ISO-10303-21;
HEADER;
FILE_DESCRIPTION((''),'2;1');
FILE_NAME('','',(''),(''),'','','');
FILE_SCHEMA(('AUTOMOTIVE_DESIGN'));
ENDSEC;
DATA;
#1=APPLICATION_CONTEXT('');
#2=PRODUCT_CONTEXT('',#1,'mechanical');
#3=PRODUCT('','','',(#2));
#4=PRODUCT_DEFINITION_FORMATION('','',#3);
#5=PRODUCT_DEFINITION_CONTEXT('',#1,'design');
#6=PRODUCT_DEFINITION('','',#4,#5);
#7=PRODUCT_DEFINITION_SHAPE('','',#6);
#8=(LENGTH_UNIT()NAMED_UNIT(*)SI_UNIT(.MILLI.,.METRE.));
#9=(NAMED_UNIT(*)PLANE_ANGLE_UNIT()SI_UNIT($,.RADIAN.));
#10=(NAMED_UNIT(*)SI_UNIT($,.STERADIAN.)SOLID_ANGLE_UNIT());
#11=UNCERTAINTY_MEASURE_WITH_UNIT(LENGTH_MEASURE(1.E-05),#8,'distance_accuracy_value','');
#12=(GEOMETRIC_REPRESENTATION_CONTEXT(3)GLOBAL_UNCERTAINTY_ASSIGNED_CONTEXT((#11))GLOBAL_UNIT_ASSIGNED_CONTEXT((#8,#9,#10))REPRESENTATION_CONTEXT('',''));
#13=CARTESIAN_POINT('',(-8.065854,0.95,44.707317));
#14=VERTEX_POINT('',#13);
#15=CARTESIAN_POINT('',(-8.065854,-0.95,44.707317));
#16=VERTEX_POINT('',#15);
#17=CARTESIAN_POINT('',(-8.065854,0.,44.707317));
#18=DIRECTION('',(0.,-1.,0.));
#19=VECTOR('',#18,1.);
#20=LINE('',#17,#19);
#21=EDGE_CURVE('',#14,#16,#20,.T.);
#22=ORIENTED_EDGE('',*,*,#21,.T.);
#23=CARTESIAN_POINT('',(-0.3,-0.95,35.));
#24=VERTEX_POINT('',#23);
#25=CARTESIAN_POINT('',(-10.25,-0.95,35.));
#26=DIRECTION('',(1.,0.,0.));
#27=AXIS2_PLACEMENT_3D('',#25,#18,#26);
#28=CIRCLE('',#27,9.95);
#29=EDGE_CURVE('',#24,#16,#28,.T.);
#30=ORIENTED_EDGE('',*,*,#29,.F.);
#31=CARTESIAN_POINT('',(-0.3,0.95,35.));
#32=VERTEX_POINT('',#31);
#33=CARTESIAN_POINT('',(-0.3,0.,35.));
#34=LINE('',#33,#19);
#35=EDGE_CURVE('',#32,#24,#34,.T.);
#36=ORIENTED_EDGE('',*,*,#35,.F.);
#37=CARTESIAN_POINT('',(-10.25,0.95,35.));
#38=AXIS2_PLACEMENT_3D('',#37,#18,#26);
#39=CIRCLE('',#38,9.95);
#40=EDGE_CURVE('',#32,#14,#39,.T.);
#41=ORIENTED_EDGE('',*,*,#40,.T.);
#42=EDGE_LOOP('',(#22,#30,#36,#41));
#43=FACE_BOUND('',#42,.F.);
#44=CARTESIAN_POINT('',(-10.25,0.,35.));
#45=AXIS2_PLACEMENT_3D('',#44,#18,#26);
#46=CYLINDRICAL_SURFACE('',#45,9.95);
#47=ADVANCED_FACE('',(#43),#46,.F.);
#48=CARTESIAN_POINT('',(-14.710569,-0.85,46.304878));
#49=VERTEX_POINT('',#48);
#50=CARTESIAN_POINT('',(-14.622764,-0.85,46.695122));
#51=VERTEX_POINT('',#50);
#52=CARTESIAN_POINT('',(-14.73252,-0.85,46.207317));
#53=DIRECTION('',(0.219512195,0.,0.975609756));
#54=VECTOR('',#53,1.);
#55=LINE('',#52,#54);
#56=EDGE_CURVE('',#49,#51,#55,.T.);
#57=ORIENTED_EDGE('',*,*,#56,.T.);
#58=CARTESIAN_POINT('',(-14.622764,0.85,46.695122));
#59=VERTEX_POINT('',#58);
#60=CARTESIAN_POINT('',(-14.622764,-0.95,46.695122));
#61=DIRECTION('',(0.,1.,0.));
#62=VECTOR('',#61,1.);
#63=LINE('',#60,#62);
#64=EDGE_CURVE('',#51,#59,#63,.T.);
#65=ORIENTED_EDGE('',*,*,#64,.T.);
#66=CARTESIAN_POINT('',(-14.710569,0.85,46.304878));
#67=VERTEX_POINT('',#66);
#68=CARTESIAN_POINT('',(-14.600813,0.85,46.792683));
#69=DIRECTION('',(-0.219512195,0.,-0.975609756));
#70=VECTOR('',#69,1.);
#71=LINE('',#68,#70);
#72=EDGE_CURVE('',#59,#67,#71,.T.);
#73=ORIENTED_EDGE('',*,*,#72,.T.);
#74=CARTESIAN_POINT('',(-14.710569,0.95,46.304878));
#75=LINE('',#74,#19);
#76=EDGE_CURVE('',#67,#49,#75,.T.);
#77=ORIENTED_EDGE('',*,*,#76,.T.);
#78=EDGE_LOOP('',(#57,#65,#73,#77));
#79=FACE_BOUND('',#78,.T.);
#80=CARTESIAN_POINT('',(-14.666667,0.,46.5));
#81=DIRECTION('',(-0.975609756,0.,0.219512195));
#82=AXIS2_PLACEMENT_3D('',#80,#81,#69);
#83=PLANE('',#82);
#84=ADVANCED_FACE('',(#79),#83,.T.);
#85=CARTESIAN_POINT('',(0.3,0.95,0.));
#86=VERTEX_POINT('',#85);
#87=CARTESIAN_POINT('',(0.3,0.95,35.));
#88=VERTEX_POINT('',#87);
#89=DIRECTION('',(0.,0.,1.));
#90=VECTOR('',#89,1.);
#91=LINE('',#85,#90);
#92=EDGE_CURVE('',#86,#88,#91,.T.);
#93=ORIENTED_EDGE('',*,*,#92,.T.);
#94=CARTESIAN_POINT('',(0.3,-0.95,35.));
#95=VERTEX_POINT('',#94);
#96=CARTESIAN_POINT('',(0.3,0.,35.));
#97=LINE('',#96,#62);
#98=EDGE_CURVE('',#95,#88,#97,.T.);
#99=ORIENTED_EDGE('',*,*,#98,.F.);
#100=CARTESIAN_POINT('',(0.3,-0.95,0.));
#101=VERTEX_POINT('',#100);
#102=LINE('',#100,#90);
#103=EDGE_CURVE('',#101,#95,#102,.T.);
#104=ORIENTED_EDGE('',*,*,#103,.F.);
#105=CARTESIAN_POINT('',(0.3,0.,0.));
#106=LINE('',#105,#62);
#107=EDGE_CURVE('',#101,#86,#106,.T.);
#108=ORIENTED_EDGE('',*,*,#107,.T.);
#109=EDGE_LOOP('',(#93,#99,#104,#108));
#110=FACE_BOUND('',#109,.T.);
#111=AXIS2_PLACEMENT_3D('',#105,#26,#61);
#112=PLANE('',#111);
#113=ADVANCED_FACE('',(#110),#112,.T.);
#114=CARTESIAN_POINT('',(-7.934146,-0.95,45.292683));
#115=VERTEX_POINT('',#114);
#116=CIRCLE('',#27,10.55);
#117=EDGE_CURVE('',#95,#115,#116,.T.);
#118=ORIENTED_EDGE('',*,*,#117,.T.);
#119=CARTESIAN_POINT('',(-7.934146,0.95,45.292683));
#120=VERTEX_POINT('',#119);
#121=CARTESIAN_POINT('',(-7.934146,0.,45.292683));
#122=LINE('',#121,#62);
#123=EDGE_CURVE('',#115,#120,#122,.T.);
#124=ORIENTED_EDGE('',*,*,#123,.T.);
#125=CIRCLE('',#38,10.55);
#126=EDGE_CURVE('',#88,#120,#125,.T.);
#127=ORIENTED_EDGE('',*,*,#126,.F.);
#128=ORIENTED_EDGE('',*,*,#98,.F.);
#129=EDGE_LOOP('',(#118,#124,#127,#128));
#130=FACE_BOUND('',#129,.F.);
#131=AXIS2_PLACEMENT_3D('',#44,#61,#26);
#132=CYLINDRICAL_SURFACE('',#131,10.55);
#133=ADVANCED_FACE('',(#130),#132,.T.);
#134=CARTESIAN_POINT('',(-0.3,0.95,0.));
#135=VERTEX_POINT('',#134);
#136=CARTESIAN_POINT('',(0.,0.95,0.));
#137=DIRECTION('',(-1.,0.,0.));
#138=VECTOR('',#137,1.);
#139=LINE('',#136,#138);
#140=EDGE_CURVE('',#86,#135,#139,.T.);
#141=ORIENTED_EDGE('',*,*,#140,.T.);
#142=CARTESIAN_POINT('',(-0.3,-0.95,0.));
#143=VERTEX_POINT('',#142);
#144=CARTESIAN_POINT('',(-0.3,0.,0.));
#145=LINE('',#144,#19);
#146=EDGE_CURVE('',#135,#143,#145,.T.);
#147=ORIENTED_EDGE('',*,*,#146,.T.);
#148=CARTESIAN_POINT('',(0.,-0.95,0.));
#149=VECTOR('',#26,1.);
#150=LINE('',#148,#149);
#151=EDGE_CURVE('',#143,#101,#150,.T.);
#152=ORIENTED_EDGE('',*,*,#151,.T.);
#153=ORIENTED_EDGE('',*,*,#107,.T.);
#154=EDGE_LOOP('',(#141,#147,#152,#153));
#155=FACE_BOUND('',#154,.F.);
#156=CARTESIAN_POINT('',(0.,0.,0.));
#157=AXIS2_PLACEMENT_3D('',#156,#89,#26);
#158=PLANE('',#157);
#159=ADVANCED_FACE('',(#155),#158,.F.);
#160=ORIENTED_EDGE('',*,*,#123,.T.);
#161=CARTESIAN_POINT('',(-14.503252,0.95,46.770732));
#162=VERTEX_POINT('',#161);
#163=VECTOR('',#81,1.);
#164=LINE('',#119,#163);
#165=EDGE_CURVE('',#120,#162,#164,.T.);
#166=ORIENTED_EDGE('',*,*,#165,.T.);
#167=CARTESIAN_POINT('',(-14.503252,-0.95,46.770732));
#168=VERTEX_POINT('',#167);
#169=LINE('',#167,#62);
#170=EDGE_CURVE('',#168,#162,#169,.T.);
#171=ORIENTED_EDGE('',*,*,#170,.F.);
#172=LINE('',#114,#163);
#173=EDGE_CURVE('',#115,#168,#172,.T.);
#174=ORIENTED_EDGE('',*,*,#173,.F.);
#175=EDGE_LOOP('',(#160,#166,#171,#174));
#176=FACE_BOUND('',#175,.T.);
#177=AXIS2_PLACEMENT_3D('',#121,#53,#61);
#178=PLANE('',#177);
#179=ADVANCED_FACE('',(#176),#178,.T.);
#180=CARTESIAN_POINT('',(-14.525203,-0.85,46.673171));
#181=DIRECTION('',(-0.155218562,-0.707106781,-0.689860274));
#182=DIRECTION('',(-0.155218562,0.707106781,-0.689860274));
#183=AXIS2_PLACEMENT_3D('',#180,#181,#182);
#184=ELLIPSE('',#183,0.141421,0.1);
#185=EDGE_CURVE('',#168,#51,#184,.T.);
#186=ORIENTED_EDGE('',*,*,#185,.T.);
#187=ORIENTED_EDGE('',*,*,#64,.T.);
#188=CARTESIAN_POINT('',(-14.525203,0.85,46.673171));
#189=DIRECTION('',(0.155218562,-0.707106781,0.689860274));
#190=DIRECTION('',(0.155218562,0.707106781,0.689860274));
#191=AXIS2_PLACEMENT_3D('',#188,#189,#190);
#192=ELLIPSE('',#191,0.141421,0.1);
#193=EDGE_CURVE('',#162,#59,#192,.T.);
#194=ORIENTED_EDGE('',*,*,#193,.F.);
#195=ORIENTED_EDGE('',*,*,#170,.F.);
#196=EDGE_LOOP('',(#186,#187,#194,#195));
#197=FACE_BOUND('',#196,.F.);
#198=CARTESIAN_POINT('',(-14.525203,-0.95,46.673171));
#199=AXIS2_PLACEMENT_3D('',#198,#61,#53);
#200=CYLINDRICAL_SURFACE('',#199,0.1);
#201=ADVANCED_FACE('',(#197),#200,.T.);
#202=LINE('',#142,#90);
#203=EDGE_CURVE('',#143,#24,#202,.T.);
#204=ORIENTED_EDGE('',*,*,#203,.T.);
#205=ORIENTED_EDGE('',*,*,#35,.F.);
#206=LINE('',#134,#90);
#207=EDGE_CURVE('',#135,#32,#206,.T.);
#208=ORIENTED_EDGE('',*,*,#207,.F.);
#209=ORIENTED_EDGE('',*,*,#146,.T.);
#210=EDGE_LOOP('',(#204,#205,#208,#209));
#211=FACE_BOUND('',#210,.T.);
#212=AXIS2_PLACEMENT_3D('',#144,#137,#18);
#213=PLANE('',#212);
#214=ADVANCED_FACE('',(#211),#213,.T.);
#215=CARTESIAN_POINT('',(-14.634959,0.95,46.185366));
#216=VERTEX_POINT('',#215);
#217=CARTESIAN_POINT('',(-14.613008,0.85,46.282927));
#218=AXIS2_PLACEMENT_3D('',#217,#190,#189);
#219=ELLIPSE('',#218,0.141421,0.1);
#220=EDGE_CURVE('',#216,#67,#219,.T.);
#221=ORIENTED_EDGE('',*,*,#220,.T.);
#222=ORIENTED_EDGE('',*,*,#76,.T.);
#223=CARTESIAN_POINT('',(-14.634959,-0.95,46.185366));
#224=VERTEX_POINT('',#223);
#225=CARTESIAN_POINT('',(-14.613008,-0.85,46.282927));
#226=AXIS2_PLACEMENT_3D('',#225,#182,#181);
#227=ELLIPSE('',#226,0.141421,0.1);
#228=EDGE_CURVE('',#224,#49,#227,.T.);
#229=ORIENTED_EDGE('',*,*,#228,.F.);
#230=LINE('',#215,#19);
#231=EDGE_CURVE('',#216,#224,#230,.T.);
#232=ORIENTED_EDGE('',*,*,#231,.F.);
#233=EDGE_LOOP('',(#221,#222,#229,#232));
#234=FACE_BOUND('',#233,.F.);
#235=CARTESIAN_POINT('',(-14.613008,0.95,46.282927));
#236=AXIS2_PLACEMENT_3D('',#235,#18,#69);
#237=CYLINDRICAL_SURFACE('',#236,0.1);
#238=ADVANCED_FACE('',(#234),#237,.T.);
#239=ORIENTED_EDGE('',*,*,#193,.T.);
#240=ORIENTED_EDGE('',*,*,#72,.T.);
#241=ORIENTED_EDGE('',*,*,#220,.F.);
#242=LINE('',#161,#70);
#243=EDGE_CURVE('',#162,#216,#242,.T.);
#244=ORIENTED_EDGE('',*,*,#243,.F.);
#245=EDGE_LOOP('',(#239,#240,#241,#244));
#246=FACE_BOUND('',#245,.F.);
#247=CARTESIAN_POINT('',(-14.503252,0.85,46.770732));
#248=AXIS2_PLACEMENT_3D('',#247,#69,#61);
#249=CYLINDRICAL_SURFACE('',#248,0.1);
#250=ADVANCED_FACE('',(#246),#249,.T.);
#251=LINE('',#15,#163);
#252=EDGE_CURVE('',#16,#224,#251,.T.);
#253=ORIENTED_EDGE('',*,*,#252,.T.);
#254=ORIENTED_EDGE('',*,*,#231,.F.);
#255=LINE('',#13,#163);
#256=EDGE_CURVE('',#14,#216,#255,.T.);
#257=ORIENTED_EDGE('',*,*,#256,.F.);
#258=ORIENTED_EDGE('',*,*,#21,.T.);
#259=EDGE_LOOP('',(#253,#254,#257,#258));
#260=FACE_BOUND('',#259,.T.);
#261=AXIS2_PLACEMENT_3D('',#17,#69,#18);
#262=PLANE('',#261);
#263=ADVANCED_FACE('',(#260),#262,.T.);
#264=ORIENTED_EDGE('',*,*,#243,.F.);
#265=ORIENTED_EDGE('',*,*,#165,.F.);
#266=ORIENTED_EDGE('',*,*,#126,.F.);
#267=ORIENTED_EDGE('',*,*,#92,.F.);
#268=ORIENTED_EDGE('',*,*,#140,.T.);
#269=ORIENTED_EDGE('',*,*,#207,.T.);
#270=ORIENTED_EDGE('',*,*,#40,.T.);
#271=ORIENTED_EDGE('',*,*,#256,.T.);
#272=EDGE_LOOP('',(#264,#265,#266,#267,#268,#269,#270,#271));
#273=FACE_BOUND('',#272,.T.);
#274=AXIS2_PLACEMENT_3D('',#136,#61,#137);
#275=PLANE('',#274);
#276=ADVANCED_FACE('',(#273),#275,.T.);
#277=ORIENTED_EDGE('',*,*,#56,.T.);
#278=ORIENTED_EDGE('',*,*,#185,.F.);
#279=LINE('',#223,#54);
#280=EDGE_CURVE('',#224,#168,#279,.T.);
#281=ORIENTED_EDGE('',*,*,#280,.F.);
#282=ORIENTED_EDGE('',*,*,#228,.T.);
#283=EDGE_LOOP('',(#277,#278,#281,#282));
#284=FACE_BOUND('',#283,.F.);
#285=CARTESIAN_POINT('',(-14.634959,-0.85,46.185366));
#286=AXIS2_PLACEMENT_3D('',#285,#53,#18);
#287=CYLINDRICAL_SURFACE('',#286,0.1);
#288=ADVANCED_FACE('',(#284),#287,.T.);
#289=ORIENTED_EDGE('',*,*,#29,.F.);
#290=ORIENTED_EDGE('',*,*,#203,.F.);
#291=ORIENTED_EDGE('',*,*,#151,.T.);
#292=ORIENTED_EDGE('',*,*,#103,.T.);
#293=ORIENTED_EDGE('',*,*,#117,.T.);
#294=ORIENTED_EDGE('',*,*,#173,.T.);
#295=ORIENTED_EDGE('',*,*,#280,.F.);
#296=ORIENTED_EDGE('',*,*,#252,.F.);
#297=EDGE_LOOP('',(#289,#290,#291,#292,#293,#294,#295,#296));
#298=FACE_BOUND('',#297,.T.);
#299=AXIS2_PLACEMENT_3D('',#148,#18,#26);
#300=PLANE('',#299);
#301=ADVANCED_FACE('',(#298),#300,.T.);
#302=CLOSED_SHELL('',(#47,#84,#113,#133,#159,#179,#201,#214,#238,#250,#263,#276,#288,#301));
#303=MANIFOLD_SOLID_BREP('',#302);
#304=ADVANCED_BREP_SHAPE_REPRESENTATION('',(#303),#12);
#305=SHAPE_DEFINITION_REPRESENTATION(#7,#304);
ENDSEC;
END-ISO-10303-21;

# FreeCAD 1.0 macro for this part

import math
import FreeCAD as App
import Part
import Sketcher
from FreeCAD import Vector
Q = App.Units.Quantity


def edges_at(feature, points):
    """Names of the edges that pass closest to the given points."""
    edges = feature.Shape.Edges
    near = lambda p: min(range(len(edges)), key=lambda i: edges[i].distToShape(Part.Vertex(*p))[0])
    return sorted({f"Edge{near(p) + 1}" for p in points})


def add_polygon(sketch, points):
    """Adds a closed chain of lines whose ends are joined by coincident constraints."""
    first, n = sketch.GeometryCount, len(points)
    for a, b in zip(points, points[1:] + points[:1]):
        sketch.addGeometry(Part.LineSegment(App.Vector(*a, 0), App.Vector(*b, 0)), False)
    for i in range(n):
        sketch.addConstraint(Sketcher.Constraint("Coincident", first + i, 2, first + (i + 1) % n, 1))

doc = App.newDocument("Part")
body = doc.addObject("PartDesign::Body", "Body")

# Sketch on XY plane
sketch1 = body.newObject("Sketcher::SketchObject", "Sketch")
sketch1.AttachmentSupport = (doc.getObject("XY_Plane"), [""])
sketch1.MapMode = "FlatFace"
add_polygon(sketch1, [(-0.3, 0.9), (-0.3, -0.9), (0.3, -0.9), (0.3, 0.9)])  # lines 0-3
sketch1.addConstraint([
    Sketcher.Constraint("Vertical", 0),
    Sketcher.Constraint("Horizontal", 1),
    Sketcher.Constraint("Vertical", 2),
    Sketcher.Constraint("Horizontal", 3),
    Sketcher.Constraint("Symmetric", 0, 2, 2, 2, -1, 1),
    Sketcher.Constraint("DistanceX", 1, 1, 1, 2, Q("0.6 mm")),
    Sketcher.Constraint("DistanceY", 0, 2, 0, 1, Q("1.9 mm")),
])

# Sketch on XZ plane
sketch2 = body.newObject("Sketcher::SketchObject", "Sketch001")
sketch2.AttachmentSupport = (doc.getObject("XZ_Plane"), [""])
sketch2.MapMode = "FlatFace"
sketch2.addGeometry([
    Part.LineSegment(Vector(0, 0, 0), Vector(0, 35, 0)),
    Part.ArcOfCircle(Part.Circle(Vector(-10, 35, 0), Vector(0, 0, 1), 10), math.radians(0), math.radians(77)),
    Part.LineSegment(Vector(-8, 45, 0), Vector(-15, 46, 0)),
], False)
sketch2.addConstraint([
    Sketcher.Constraint("Tangent", 0, 2, 1, 1),
    Sketcher.Constraint("Tangent", 1, 2, 2, 1),
    Sketcher.Constraint("Vertical", 0),
    Sketcher.Constraint("Coincident", 0, 1, -1, 1),
    Sketcher.Constraint("DistanceY", 0, 1, 0, 2, Q("35 mm")),
    Sketcher.Constraint("Radius", 1, Q("10.25 mm")),
    Sketcher.Constraint("DistanceX", 1, 2, -1, 1, Q("8 mm")),
    Sketcher.Constraint("DistanceY", -1, 1, 2, 2, Q("46.5 mm")),
])
doc.recompute()

additivepipe = body.newObject("PartDesign::AdditivePipe", "AdditivePipe")
additivepipe.Profile = sketch1
additivepipe.Spine = (sketch2, ["Edge1", "Edge2", "Edge3"])
doc.recompute()

fillet = body.newObject("PartDesign::Fillet", "Fillet")
fillet.Base = (additivepipe, edges_at(additivepipe, [
    (-14.601, 0, 46.793),
    (-14.733, 0, 46.207),
    (-14.667, -0.95, 46.5),
    (-14.667, 0.95, 46.5),
]))
fillet.Radius = 0.1

doc.recompute()
